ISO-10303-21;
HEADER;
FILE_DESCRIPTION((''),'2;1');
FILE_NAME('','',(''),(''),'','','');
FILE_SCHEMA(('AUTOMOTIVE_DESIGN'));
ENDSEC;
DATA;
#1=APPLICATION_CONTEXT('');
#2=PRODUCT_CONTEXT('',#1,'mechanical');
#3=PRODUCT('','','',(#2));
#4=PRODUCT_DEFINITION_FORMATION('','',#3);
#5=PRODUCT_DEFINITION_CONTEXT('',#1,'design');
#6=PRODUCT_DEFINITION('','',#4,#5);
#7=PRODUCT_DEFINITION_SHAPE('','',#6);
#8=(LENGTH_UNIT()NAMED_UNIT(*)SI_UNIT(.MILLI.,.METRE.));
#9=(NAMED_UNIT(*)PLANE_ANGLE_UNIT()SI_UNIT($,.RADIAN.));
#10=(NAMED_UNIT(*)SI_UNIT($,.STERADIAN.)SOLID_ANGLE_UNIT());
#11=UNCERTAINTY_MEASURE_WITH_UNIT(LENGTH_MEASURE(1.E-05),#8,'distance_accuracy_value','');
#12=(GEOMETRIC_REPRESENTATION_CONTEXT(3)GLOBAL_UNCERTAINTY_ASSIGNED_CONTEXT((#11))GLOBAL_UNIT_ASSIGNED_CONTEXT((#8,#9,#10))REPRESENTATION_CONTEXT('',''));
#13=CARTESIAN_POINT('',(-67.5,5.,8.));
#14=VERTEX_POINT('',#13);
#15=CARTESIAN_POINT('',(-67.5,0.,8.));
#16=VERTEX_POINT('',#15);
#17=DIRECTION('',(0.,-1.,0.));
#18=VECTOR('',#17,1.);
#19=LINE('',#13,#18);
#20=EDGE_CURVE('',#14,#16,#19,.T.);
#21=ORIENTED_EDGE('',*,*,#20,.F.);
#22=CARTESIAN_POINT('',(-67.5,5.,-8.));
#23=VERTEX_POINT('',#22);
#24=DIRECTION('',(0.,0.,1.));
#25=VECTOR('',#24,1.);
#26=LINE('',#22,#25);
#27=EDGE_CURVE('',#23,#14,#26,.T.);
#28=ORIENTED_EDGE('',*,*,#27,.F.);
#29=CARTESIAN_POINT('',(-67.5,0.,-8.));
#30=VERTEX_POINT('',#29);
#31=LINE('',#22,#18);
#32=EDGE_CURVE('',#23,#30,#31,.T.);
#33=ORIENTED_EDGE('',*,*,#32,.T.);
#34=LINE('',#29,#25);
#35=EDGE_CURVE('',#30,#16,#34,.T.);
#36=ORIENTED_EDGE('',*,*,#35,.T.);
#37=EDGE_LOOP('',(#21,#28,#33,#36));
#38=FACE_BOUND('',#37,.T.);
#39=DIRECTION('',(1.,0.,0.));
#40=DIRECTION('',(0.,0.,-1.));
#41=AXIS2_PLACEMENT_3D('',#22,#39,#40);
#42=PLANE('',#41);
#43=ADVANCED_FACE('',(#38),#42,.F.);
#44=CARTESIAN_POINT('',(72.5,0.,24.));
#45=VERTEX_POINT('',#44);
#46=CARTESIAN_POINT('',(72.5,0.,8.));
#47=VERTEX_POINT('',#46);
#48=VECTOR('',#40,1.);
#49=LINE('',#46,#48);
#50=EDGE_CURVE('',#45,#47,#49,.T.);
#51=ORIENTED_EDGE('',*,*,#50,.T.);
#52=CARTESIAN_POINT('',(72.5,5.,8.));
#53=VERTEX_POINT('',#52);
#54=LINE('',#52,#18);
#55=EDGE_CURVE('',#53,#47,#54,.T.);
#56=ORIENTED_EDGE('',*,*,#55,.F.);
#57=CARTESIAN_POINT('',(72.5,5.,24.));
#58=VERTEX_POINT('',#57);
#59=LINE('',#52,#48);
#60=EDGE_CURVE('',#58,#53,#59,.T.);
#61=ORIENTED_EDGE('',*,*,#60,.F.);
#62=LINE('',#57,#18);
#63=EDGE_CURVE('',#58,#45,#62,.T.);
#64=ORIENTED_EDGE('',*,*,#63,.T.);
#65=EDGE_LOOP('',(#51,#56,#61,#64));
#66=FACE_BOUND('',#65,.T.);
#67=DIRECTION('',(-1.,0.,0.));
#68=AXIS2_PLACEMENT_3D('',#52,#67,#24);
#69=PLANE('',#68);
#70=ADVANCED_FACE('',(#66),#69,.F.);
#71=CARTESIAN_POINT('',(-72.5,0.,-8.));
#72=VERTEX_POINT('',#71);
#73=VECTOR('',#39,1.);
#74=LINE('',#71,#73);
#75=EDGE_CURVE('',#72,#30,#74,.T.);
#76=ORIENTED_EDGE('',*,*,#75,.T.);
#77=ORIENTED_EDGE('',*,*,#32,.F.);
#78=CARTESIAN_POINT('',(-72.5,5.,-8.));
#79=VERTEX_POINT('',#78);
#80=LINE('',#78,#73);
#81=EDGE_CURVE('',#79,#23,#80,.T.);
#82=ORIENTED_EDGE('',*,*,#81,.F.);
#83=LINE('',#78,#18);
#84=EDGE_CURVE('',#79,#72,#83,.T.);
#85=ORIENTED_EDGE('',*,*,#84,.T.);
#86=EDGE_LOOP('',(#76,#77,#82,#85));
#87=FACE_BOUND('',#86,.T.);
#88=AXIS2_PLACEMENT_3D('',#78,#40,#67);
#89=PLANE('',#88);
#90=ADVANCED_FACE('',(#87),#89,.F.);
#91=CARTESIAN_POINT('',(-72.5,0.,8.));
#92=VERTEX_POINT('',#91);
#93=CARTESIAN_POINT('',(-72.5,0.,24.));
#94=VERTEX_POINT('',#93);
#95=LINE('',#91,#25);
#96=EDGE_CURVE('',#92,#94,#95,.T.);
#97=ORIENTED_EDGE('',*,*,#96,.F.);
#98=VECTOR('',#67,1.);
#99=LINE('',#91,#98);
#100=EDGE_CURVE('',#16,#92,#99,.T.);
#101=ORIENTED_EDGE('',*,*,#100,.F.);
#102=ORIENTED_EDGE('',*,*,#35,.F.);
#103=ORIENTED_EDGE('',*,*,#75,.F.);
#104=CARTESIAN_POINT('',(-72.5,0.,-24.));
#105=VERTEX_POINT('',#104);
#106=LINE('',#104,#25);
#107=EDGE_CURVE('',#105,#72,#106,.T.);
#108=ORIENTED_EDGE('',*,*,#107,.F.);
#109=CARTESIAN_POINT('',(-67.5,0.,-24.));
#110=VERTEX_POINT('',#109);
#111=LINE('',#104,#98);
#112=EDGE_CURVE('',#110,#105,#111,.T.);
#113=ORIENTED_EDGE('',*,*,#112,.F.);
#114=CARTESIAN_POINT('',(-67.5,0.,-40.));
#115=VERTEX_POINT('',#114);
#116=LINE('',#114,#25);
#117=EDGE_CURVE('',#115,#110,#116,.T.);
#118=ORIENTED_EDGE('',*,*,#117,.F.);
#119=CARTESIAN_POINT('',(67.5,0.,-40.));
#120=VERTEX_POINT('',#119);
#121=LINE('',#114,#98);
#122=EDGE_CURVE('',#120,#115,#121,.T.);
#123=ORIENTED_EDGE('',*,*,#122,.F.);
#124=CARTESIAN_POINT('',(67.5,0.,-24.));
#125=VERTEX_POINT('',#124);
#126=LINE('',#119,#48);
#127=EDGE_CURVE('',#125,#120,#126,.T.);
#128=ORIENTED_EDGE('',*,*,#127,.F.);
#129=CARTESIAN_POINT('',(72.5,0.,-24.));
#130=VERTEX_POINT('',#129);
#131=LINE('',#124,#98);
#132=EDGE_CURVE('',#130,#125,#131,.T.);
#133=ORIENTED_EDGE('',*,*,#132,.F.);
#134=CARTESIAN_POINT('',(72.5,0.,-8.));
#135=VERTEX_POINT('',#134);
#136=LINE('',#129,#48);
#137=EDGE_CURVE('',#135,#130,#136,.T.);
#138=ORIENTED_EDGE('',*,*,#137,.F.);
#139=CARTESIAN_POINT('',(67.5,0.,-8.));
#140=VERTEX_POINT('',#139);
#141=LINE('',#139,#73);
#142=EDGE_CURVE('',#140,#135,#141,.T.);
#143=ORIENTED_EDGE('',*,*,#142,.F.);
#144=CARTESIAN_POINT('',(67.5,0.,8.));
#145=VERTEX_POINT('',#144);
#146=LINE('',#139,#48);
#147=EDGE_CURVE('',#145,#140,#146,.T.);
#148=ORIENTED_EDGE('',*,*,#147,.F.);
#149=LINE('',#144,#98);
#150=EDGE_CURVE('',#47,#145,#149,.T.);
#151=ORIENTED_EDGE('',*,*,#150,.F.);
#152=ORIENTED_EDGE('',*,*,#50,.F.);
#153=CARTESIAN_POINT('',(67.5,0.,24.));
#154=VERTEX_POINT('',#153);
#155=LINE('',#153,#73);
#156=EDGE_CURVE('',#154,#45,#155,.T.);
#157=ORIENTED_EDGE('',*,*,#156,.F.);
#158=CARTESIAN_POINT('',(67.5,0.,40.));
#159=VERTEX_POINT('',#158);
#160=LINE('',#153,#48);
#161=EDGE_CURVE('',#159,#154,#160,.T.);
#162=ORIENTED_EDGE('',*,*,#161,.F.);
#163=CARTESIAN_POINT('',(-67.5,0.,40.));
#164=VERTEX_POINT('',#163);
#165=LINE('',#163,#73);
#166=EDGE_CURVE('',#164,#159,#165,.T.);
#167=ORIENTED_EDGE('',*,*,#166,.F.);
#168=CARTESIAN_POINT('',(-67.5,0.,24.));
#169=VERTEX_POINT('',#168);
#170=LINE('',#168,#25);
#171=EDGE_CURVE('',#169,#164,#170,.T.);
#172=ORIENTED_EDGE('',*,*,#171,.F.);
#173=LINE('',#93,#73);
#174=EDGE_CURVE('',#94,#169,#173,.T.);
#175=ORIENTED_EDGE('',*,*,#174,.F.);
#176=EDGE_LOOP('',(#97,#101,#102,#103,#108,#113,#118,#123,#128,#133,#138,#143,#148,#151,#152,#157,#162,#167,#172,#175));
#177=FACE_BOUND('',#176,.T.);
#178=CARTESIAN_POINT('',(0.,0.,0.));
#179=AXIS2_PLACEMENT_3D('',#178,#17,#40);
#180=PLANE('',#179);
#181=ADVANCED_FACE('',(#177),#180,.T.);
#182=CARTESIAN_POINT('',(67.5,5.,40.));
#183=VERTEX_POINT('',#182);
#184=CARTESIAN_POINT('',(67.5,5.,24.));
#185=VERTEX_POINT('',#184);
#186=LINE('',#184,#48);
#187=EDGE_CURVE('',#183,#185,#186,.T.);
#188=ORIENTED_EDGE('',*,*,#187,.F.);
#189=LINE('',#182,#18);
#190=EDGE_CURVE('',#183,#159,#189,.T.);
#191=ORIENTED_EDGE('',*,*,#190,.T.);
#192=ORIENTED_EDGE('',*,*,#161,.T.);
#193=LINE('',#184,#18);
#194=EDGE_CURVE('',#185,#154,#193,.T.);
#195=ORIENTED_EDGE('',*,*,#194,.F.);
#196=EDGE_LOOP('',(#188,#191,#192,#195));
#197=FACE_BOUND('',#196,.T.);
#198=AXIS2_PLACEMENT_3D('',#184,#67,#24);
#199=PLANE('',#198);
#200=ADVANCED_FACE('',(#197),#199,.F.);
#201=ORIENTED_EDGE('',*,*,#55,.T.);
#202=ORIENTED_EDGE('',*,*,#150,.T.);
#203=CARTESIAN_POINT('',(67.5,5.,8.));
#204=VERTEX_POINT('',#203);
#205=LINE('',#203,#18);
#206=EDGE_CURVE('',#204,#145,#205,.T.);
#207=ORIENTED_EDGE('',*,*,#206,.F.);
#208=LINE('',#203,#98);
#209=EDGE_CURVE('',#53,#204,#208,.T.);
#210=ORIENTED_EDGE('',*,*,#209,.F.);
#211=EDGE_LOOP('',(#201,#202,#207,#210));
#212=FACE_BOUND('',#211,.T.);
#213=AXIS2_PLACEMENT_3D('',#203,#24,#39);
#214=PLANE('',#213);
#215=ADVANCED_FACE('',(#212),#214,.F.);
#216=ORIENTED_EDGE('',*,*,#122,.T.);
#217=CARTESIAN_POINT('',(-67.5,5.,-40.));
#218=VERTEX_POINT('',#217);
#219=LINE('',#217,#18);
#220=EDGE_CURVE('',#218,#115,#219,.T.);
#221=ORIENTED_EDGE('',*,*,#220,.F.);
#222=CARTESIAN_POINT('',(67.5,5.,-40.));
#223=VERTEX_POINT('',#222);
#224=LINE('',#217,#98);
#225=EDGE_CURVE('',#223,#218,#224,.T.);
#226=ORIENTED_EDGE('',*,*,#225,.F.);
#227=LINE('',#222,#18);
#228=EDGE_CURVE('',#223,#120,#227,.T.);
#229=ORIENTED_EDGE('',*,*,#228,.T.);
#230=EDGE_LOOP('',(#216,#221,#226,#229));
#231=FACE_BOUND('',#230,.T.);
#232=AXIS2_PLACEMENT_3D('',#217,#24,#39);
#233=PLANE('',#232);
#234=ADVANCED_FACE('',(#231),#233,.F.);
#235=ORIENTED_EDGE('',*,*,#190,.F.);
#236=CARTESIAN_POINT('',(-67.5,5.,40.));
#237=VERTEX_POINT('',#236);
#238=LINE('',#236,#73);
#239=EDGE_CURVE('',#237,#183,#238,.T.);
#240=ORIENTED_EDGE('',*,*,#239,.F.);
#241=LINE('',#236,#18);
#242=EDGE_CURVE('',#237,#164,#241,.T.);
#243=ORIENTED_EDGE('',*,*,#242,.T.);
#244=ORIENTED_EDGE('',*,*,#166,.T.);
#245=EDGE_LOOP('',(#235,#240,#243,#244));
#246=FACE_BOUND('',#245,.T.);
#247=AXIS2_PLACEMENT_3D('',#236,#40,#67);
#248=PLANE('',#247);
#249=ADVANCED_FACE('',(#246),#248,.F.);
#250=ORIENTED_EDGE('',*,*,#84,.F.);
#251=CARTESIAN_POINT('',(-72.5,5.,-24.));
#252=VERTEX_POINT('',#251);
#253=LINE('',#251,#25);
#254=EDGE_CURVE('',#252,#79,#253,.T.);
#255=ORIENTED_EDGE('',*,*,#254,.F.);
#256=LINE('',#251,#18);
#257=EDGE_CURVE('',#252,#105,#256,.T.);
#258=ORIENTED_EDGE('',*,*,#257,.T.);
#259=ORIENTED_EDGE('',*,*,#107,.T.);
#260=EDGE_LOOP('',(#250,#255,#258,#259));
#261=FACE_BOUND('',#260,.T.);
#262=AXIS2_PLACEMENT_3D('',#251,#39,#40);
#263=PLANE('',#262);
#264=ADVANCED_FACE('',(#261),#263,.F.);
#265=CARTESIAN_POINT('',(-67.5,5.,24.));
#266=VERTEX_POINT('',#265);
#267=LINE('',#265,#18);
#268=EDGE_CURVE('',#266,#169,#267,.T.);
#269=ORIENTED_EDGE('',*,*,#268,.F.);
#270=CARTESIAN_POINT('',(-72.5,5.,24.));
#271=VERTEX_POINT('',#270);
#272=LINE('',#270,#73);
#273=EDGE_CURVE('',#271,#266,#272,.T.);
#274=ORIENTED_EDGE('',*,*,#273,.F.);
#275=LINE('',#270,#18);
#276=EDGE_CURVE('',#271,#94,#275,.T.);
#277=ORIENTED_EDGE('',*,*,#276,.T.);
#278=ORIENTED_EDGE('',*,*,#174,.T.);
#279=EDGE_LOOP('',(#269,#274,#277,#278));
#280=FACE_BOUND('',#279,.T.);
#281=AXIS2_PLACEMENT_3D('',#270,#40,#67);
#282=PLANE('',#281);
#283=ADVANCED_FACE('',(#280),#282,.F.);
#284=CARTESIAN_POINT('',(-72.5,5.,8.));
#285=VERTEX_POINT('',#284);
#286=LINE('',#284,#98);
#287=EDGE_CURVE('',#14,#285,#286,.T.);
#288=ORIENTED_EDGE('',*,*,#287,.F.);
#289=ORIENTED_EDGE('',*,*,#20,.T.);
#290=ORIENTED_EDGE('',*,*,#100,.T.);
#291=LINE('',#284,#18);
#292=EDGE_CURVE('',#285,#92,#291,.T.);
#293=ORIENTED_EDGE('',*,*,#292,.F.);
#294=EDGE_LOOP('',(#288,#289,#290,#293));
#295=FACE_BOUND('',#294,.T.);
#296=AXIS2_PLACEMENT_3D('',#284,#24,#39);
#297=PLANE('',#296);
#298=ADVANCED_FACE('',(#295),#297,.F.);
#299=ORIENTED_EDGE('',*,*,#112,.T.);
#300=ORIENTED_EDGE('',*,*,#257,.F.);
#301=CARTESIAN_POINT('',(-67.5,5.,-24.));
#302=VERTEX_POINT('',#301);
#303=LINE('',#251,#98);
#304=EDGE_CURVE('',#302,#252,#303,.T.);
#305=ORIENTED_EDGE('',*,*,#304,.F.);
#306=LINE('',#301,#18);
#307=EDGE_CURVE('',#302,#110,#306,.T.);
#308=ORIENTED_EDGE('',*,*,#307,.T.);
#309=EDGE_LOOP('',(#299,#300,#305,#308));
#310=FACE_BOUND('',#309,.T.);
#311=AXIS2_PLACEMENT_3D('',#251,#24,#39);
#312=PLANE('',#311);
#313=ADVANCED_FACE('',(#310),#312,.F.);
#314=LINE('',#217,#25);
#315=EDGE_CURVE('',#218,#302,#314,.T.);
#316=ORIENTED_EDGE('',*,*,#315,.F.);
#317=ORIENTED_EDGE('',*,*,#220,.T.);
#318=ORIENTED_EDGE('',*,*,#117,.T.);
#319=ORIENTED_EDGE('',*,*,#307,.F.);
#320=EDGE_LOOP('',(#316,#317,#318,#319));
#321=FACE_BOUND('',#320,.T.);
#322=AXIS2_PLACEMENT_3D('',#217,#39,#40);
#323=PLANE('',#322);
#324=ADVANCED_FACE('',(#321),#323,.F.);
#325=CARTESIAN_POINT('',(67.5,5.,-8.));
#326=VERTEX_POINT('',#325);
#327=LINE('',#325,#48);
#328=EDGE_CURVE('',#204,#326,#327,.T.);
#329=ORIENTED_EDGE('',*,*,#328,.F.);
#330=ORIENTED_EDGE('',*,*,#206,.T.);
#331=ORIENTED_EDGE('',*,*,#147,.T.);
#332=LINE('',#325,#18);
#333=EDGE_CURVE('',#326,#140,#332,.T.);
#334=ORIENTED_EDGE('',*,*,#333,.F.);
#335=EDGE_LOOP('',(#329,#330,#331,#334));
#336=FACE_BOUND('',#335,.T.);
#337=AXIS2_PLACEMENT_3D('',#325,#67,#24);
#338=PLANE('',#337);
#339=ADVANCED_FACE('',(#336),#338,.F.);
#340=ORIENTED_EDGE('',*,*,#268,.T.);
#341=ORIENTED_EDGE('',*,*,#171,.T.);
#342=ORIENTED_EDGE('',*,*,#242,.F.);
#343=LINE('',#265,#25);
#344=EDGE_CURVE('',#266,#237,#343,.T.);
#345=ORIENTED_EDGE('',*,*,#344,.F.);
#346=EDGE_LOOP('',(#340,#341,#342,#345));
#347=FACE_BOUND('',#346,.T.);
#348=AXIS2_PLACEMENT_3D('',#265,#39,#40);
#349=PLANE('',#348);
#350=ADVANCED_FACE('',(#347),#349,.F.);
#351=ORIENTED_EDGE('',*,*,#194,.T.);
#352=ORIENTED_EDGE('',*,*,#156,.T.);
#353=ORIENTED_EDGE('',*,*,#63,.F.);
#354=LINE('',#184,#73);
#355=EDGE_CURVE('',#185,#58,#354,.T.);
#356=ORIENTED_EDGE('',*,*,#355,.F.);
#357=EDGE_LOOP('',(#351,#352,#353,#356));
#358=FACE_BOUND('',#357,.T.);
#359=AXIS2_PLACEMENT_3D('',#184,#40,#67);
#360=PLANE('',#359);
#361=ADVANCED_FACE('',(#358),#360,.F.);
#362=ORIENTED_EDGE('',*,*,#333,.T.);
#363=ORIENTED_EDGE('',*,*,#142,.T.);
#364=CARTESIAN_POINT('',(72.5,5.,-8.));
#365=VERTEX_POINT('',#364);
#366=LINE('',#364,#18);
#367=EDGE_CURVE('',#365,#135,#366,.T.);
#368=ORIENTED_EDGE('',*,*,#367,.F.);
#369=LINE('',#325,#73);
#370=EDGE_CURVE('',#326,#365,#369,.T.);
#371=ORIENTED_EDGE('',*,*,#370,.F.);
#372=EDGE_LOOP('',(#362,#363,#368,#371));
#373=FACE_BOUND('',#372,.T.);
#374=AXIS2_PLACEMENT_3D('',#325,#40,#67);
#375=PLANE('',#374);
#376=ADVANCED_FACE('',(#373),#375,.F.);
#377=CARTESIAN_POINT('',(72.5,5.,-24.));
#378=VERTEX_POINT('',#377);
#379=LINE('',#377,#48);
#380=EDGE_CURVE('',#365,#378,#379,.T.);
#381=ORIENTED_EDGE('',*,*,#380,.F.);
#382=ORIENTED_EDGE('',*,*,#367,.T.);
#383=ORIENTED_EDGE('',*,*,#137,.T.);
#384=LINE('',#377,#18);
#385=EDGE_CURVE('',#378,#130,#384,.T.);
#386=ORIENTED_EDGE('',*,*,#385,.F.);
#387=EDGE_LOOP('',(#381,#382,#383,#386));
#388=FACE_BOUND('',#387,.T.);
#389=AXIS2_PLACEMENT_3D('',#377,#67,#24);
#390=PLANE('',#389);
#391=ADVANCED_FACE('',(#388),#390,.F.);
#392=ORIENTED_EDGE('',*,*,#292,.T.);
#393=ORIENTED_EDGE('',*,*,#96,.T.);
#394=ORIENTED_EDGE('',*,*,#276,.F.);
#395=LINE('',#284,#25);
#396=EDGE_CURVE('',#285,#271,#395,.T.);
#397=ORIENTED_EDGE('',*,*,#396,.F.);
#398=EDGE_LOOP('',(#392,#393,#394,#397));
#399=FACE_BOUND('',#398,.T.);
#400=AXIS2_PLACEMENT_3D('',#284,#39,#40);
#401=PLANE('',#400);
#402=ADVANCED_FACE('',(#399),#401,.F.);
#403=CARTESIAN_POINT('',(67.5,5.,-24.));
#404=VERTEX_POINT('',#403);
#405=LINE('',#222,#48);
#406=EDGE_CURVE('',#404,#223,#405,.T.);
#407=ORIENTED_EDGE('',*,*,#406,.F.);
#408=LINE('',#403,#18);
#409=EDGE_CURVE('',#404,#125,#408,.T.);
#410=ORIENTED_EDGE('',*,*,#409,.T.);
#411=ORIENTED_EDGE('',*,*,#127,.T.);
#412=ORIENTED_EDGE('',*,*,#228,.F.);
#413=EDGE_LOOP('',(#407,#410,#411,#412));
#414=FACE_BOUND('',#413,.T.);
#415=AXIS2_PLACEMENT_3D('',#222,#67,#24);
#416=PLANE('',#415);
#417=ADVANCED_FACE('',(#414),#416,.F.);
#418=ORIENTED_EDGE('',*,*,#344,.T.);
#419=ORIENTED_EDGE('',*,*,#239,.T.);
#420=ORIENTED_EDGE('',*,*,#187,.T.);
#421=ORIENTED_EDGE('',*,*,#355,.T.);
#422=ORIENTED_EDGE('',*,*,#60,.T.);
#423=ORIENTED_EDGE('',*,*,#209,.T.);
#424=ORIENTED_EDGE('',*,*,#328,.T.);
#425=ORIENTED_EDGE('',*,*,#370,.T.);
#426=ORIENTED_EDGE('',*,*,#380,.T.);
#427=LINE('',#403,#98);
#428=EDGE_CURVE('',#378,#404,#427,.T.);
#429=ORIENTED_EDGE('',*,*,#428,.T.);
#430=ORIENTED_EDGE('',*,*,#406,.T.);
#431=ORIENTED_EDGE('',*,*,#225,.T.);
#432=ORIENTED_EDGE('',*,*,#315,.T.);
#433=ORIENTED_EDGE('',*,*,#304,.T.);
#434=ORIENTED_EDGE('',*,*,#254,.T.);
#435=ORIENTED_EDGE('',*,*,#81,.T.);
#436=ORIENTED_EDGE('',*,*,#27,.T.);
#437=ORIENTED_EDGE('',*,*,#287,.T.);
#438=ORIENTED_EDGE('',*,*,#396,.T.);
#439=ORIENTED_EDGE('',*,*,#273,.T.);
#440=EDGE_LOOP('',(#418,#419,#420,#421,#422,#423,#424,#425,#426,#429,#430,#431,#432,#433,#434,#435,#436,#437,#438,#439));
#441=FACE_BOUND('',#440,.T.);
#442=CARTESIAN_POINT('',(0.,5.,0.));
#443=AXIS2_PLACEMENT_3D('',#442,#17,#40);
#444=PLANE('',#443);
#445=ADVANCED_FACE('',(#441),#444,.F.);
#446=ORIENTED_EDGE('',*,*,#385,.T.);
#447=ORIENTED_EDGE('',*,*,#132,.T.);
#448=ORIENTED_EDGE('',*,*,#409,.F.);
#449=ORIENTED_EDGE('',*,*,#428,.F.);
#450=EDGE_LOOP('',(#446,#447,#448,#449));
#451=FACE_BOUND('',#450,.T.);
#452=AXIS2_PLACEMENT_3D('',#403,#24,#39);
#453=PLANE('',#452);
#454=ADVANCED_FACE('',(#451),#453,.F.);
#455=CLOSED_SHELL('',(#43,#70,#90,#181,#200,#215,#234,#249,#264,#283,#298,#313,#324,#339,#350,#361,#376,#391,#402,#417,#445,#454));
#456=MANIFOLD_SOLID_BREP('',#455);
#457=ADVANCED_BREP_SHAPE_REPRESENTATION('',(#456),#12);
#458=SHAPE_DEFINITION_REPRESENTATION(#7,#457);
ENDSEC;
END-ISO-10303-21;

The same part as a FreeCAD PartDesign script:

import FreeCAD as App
import Part
import Sketcher
from FreeCAD import Vector

doc = App.newDocument("Part")
params = doc.addObject("Spreadsheet::Sheet", "Params")
for row, (alias, value) in enumerate([
    ("sketch1_width", "5 mm"),
    ("sketch1_width2", "135 mm"),
    ("sketch1_height", "16 mm"),
    ("pad1_length", "5 mm"),
], start=1):
    params.set(f"A{row}", alias)
    params.set(f"B{row}", "=" + value)
    params.setAlias(f"B{row}", alias)

body = doc.addObject("PartDesign::Body", "Body")

# Sketch on XZ plane
sketch1 = doc.addObject("Sketcher::SketchObject", "Sketch")
body.addObject(sketch1)
sketch1.AttachmentSupport = (doc.XZ_Plane, [""])
sketch1.MapMode = "FlatFace"
sketch1.addGeometry([
    Part.LineSegment(Vector(-68, -40, 0), Vector(-68, -24, 0)),  # 0
    Part.LineSegment(Vector(-68, -24, 0), Vector(-72, -24, 0)),  # 1
    Part.LineSegment(Vector(-72, -24, 0), Vector(-72, -8, 0)),  # 2
    Part.LineSegment(Vector(-72, -8, 0), Vector(-68, -8, 0)),  # 3
    Part.LineSegment(Vector(-68, -8, 0), Vector(-68, 8, 0)),  # 4
    Part.LineSegment(Vector(-68, 8, 0), Vector(-72, 8, 0)),  # 5
    Part.LineSegment(Vector(-72, 8, 0), Vector(-72, 24, 0)),  # 6
    Part.LineSegment(Vector(-72, 24, 0), Vector(-68, 24, 0)),  # 7
    Part.LineSegment(Vector(-68, 24, 0), Vector(-68, 40, 0)),  # 8
    Part.LineSegment(Vector(-68, 40, 0), Vector(68, 40, 0)),  # 9
    Part.LineSegment(Vector(68, 40, 0), Vector(68, 24, 0)),  # 10
    Part.LineSegment(Vector(68, 24, 0), Vector(72, 24, 0)),  # 11
    Part.LineSegment(Vector(72, 24, 0), Vector(72, 8, 0)),  # 12
    Part.LineSegment(Vector(72, 8, 0), Vector(68, 8, 0)),  # 13
    Part.LineSegment(Vector(68, 8, 0), Vector(68, -8, 0)),  # 14
    Part.LineSegment(Vector(68, -8, 0), Vector(72, -8, 0)),  # 15
    Part.LineSegment(Vector(72, -8, 0), Vector(72, -24, 0)),  # 16
    Part.LineSegment(Vector(72, -24, 0), Vector(68, -24, 0)),  # 17
    Part.LineSegment(Vector(68, -24, 0), Vector(68, -40, 0)),  # 18
    Part.LineSegment(Vector(68, -40, 0), Vector(-68, -40, 0)),  # 19
], False)
sketch1.addConstraint([
    Sketcher.Constraint("Coincident", 0, 2, 1, 1),
    Sketcher.Constraint("Coincident", 1, 2, 2, 1),
    Sketcher.Constraint("Coincident", 2, 2, 3, 1),
    Sketcher.Constraint("Coincident", 3, 2, 4, 1),
    Sketcher.Constraint("Coincident", 4, 2, 5, 1),
    Sketcher.Constraint("Coincident", 5, 2, 6, 1),
    Sketcher.Constraint("Coincident", 6, 2, 7, 1),
    Sketcher.Constraint("Coincident", 7, 2, 8, 1),
    Sketcher.Constraint("Coincident", 8, 2, 9, 1),
    Sketcher.Constraint("Coincident", 9, 2, 10, 1),
    Sketcher.Constraint("Coincident", 10, 2, 11, 1),
    Sketcher.Constraint("Coincident", 11, 2, 12, 1),
    Sketcher.Constraint("Coincident", 12, 2, 13, 1),
    Sketcher.Constraint("Coincident", 13, 2, 14, 1),
    Sketcher.Constraint("Coincident", 14, 2, 15, 1),
    Sketcher.Constraint("Coincident", 15, 2, 16, 1),
    Sketcher.Constraint("Coincident", 16, 2, 17, 1),
    Sketcher.Constraint("Coincident", 17, 2, 18, 1),
    Sketcher.Constraint("Coincident", 18, 2, 19, 1),
    Sketcher.Constraint("Coincident", 19, 2, 0, 1),
    Sketcher.Constraint("Vertical", 0),
    Sketcher.Constraint("Horizontal", 1),
    Sketcher.Constraint("Vertical", 2),
    Sketcher.Constraint("Horizontal", 3),
    Sketcher.Constraint("Vertical", 4),
    Sketcher.Constraint("Horizontal", 5),
    Sketcher.Constraint("Vertical", 6),
    Sketcher.Constraint("Horizontal", 7),
    Sketcher.Constraint("Vertical", 8),
    Sketcher.Constraint("Horizontal", 9),
    Sketcher.Constraint("Vertical", 10),
    Sketcher.Constraint("Horizontal", 11),
    Sketcher.Constraint("Vertical", 12),
    Sketcher.Constraint("Horizontal", 13),
    Sketcher.Constraint("Vertical", 14),
    Sketcher.Constraint("Horizontal", 15),
    Sketcher.Constraint("Vertical", 16),
    Sketcher.Constraint("Horizontal", 17),
    Sketcher.Constraint("Vertical", 18),
    Sketcher.Constraint("Horizontal", 19),
    Sketcher.Constraint("Symmetric", 0, 2, 10, 2, -1, 1),
    Sketcher.Constraint("Symmetric", 2, 2, 12, 2, -1, 1),
    Sketcher.Constraint("Symmetric", 4, 2, 14, 2, -1, 1),
    Sketcher.Constraint("Symmetric", 6, 2, 16, 2, -1, 1),
    Sketcher.Constraint("Symmetric", 8, 2, 18, 2, -1, 1),
    Sketcher.Constraint("Symmetric", 7, 2, 10, 2, -2),
    Sketcher.Constraint("Symmetric", 5, 2, 12, 2, -2),
    Sketcher.Constraint("Vertical", 0, 2, 3, 2),
    Sketcher.Constraint("Equal", 0, 2),
    Sketcher.Constraint("Equal", 2, 4),
    Sketcher.Constraint("DistanceX", 1, 2, 1, 1, 5.0),
    Sketcher.Constraint("DistanceX", 9, 1, 9, 2, 135.0),
    Sketcher.Constraint("DistanceY", 0, 1, 0, 2, 16.0),
])
sketch1.setExpression("Constraints[50]", "Params.sketch1_width")
sketch1.setExpression("Constraints[51]", "Params.sketch1_width2")
sketch1.setExpression("Constraints[52]", "Params.sketch1_height")
pad1 = doc.addObject("PartDesign::Pad", "Pad")
body.addObject(pad1)
pad1.Profile = sketch1
pad1.setExpression("Length", "Params.pad1_length")
pad1.Reversed = True

doc.recompute()
